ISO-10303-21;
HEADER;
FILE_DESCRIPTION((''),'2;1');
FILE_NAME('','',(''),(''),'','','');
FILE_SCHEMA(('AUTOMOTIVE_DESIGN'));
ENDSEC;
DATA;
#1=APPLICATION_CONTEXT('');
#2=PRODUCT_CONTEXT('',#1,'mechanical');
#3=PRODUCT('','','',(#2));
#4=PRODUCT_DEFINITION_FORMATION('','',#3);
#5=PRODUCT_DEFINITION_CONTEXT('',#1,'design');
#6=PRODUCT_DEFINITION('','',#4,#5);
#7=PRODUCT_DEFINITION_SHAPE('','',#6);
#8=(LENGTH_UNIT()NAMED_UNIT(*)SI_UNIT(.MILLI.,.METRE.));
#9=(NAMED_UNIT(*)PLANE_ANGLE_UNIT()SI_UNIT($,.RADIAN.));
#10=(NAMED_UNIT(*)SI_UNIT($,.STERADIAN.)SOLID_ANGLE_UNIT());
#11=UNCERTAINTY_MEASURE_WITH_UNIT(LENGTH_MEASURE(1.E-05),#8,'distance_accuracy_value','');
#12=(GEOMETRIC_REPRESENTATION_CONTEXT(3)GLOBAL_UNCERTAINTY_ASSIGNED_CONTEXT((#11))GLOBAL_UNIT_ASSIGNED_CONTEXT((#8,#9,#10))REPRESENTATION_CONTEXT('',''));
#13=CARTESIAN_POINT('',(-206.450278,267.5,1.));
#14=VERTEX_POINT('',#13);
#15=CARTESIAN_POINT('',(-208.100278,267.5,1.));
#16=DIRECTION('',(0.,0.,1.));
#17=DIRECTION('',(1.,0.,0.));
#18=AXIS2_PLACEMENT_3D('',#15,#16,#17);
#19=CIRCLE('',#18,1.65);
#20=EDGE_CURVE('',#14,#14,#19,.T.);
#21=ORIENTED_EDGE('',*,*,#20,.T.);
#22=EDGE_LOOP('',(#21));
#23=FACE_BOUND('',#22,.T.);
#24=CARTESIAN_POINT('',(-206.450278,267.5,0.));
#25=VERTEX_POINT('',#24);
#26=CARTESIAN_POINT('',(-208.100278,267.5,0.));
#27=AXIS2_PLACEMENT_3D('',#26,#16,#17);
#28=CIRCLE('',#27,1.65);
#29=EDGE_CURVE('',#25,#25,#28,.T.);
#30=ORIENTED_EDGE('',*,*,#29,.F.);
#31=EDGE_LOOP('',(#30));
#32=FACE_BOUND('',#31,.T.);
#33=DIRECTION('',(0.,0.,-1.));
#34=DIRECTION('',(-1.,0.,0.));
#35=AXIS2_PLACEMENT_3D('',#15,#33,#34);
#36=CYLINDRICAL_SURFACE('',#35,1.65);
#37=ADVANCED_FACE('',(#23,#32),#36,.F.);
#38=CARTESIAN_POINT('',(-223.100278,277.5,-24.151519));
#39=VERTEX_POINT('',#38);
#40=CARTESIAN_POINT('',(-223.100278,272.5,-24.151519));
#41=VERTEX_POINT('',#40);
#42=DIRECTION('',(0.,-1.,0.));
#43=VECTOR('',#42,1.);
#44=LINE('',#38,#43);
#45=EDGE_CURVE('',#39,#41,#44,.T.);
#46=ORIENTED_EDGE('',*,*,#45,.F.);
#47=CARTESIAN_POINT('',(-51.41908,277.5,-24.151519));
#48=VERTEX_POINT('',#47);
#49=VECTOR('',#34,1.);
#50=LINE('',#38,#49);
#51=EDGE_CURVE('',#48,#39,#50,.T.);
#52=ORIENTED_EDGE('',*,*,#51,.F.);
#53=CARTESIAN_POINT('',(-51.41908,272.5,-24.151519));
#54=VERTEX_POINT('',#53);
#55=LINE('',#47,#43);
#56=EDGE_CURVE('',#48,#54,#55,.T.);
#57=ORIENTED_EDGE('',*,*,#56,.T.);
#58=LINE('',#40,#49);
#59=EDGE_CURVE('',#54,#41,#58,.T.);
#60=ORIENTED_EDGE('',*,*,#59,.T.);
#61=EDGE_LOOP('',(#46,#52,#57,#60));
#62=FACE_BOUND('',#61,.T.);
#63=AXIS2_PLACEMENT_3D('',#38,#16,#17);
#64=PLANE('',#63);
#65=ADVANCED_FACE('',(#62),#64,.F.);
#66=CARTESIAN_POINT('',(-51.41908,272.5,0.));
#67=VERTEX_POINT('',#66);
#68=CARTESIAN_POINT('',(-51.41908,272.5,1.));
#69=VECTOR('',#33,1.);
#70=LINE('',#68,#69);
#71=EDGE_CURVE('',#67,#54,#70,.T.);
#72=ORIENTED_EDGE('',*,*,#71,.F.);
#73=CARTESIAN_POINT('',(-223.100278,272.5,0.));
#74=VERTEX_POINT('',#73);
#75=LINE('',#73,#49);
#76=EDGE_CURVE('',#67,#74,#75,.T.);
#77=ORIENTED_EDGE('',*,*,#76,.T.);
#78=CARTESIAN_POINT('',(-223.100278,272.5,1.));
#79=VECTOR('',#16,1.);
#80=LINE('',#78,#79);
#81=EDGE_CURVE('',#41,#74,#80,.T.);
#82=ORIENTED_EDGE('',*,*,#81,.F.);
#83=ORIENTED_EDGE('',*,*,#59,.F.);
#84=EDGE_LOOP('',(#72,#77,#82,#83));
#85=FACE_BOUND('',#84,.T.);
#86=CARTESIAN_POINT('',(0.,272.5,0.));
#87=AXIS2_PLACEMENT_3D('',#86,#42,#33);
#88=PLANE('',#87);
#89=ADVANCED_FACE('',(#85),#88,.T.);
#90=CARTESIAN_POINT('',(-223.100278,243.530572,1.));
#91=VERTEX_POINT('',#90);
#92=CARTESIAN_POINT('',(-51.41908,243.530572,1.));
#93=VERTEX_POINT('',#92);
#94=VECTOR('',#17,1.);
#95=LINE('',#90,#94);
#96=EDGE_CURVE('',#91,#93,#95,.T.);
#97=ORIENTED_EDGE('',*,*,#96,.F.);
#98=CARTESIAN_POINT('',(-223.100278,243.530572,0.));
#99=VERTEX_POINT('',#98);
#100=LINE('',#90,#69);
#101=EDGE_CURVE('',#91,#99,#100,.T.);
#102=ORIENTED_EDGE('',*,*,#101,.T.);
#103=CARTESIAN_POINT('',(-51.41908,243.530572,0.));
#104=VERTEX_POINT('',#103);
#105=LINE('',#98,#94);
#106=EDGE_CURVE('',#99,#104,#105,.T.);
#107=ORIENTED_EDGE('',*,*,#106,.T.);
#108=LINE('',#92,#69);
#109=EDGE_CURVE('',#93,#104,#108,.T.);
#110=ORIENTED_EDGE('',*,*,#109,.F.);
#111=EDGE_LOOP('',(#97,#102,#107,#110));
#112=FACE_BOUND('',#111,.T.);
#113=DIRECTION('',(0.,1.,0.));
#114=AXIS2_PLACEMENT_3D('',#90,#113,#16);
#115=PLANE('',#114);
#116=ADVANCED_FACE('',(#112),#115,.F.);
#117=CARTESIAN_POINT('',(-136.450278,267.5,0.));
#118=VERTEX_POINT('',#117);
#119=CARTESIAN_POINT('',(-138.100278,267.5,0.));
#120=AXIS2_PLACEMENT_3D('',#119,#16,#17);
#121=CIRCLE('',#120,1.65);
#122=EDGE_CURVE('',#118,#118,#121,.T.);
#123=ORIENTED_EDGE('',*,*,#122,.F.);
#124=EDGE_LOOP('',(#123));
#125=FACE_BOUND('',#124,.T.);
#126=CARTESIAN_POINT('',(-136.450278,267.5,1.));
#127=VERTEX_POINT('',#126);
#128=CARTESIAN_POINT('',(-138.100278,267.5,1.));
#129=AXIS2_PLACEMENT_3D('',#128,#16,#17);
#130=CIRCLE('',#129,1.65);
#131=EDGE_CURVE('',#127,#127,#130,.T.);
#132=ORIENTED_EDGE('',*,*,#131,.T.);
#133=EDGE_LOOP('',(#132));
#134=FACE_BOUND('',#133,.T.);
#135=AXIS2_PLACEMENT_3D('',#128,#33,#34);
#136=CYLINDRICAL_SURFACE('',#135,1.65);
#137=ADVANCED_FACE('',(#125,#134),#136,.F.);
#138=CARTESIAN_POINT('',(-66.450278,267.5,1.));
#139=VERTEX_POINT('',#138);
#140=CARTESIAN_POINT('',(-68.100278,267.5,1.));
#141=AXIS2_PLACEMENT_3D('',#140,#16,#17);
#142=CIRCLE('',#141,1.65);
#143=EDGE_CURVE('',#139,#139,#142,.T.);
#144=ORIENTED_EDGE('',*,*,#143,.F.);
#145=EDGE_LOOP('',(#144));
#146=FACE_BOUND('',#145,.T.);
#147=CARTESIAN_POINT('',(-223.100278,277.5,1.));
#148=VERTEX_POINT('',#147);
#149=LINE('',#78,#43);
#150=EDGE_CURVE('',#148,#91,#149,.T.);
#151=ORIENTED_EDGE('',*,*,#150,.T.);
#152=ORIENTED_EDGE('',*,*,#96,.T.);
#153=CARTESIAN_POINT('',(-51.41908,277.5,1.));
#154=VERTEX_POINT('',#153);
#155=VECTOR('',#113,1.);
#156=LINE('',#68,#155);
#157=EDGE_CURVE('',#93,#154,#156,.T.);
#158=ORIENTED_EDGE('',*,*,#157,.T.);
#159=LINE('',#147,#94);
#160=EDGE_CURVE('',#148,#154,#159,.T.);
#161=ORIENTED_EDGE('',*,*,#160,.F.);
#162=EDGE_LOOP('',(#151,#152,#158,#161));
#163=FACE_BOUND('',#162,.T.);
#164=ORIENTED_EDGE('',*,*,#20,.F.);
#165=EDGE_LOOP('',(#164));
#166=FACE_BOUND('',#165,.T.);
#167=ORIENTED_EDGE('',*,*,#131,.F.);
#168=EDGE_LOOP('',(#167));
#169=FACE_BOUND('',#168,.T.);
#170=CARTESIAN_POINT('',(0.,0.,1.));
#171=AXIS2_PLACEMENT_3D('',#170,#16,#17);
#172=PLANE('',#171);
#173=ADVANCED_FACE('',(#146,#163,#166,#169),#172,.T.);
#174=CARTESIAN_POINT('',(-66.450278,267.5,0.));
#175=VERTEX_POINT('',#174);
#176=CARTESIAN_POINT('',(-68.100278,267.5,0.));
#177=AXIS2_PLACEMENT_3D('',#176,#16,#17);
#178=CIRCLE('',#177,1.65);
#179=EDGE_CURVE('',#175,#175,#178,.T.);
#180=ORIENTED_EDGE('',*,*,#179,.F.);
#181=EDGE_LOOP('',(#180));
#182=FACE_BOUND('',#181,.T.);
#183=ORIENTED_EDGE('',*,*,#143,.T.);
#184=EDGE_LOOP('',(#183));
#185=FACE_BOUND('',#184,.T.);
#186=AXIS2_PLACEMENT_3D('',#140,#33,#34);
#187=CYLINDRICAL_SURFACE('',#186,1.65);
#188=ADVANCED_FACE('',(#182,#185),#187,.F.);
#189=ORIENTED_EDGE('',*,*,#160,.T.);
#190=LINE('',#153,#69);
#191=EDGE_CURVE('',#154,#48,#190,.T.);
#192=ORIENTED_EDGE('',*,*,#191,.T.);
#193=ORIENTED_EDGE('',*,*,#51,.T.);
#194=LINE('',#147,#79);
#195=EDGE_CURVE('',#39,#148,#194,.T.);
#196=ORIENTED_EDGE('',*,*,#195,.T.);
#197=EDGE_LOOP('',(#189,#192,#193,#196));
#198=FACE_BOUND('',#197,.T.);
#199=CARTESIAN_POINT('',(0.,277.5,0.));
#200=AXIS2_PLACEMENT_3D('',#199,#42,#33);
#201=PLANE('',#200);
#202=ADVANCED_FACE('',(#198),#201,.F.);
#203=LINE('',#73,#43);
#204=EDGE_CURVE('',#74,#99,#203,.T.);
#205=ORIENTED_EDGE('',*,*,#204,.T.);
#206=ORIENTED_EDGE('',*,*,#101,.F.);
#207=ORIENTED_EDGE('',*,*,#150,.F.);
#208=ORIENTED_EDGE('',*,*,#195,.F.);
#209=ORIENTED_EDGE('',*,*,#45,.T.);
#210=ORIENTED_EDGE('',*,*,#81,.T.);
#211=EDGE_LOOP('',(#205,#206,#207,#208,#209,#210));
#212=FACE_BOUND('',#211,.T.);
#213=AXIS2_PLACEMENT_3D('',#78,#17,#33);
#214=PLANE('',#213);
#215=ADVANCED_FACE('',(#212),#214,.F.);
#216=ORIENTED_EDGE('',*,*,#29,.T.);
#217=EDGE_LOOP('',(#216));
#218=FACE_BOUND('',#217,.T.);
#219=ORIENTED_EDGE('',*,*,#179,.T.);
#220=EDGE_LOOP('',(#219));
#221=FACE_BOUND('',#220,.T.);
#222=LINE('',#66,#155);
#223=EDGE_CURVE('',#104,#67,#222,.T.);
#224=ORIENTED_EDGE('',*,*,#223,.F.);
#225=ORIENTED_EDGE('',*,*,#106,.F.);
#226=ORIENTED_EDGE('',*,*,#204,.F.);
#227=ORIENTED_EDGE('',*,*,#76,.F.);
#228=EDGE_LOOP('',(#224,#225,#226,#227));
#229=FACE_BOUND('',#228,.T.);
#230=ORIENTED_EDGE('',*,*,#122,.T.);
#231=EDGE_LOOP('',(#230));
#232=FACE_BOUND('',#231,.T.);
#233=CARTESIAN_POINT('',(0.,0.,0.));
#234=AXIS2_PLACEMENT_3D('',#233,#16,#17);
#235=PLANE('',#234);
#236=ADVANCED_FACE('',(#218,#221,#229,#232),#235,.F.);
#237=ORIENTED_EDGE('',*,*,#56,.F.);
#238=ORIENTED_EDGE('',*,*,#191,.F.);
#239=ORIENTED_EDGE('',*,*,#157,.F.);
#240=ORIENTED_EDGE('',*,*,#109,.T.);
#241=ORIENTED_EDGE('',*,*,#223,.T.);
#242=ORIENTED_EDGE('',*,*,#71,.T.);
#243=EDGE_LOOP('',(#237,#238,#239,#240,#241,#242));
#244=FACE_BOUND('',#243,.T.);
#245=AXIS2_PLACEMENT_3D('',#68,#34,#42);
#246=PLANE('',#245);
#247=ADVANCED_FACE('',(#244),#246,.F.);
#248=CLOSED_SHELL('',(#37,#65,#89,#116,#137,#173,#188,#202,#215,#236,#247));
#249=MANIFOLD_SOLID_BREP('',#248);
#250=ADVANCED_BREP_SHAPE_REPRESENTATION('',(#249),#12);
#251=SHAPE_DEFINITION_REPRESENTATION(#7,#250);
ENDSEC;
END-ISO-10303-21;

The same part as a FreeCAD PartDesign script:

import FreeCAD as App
import Part
import Sketcher

V = App.Vector


def add_polygon(sketch, points):
    """Adds a closed chain of lines whose ends are joined by coincident constraints."""
    first, n = sketch.GeometryCount, len(points)
    for a, b in zip(points, points[1:] + points[:1]):
        sketch.addGeometry(Part.LineSegment(App.Vector(*a, 0), App.Vector(*b, 0)), False)
    for i in range(n):
        sketch.addConstraint(Sketcher.Constraint("Coincident", first + i, 2, first + (i + 1) % n, 1))

doc = App.newDocument("Part")
params = doc.addObject("Spreadsheet::Sheet", "Params")
for row, (alias, value) in enumerate([
    ("sketch1_diameter", "3.3 mm"),
    ("pad1_length", "1 mm"),
    ("pad2_length", "5 mm"),
], start=1):
    params.set(f"A{row}", alias)
    params.set(f"B{row}", "=" + value)
    params.setAlias(f"B{row}", alias)

body = doc.addObject("PartDesign::Body", "Body")

sketch1 = body.newObject("Sketcher::SketchObject", "Sketch")
sketch1.AttachmentSupport = (doc.getObject("XY_Plane"), [""])
sketch1.MapMode = "FlatFace"
add_polygon(sketch1, [(-223.1, 272.5), (-223.1, 243.5), (-51.4, 243.5), (-51.4, 272.5)])
sketch1.addGeometry(Part.Circle(V(-208.1, 267.5, 0), V(0, 0, 1), 1.6), False)
sketch1.addGeometry(Part.Circle(V(-138.1, 267.5, 0), V(0, 0, 1), 1.6), False)
sketch1.addGeometry(Part.Circle(V(-68.1, 267.5, 0), V(0, 0, 1), 1.6), False)
sketch1.addConstraint(Sketcher.Constraint("Vertical", 0))
sketch1.addConstraint(Sketcher.Constraint("Horizontal", 1))
sketch1.addConstraint(Sketcher.Constraint("Vertical", 2))
sketch1.addConstraint(Sketcher.Constraint("Horizontal", 3))
sketch1.addConstraint(Sketcher.Constraint("Equal", 4, 5))
sketch1.addConstraint(Sketcher.Constraint("Equal", 5, 6))
sketch1.addConstraint(Sketcher.Constraint("Horizontal", 4, 3, 5, 3))
sketch1.addConstraint(Sketcher.Constraint("Horizontal", 5, 3, 6, 3))
sketch1.addConstraint(Sketcher.Constraint("Diameter", 4, 3.3))
sketch1.addConstraint(Sketcher.Constraint("DistanceX", 4, 3, 5, 3, 70.0))
sketch1.addConstraint(Sketcher.Constraint("DistanceX", 5, 3, 6, 3, 70.0))
sketch1.addConstraint(Sketcher.Constraint("DistanceX", 0, 2, 4, 3, 15.0))
sketch1.addConstraint(Sketcher.Constraint("DistanceY", 6, 3, 2, 2, 5.0))
sketch1.addConstraint(Sketcher.Constraint("DistanceY", -1, 1, 4, 3, 267.5))
sketch1.addConstraint(Sketcher.Constraint("DistanceY", 0, 2, 0, 1, 28.969428))
sketch1.addConstraint(Sketcher.Constraint("DistanceX", 1, 1, 1, 2, 171.681198))
sketch1.addConstraint(Sketcher.Constraint("DistanceX", 1, 2, -1, 1, 51.41908))
sketch1.setExpression("Constraints[12]", "Params.sketch1_diameter")
pad1 = body.newObject("PartDesign::Pad", "Pad")
pad1.Profile = sketch1
pad1.setExpression("Length", "Params.pad1_length")

sketch2 = body.newObject("Sketcher::SketchObject", "Sketch001")
sketch2.AttachmentSupport = (doc.getObject("XZ_Plane"), [""])
sketch2.MapMode = "FlatFace"
sketch2.AttachmentOffset = App.Placement(V(0, 0, -272.5), App.Rotation())
add_polygon(sketch2, [(-223, -24), (-223, 1), (-51, 1), (-51, -24)])
sketch2.addConstraint(Sketcher.Constraint("Vertical", 0))
sketch2.addConstraint(Sketcher.Constraint("Horizontal", 1))
sketch2.addConstraint(Sketcher.Constraint("Vertical", 2))
sketch2.addConstraint(Sketcher.Constraint("Horizontal", 3))
sketch2.addConstraint(Sketcher.Constraint("DistanceY", -1, 1, 0, 2, 1.0))
sketch2.addConstraint(Sketcher.Constraint("DistanceY", 0, 1, 0, 2, 25.151519))
sketch2.addConstraint(Sketcher.Constraint("DistanceX", 1, 1, 1, 2, 171.681198))
sketch2.addConstraint(Sketcher.Constraint("DistanceX", 1, 2, -1, 1, 51.41908))
pad2 = body.newObject("PartDesign::Pad", "Pad001")
pad2.Profile = sketch2
pad2.setExpression("Length", "Params.pad2_length")
pad2.Reversed = True

doc.recompute()
